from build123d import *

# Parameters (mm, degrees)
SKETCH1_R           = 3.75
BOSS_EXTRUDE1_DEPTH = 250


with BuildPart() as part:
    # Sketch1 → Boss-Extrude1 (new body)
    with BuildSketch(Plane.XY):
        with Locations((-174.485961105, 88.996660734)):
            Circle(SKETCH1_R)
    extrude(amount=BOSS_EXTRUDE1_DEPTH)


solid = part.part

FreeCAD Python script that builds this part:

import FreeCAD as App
import Part
import Sketcher
from FreeCAD import Vector
Q = App.Units.Quantity

doc = App.newDocument("Part")
params = doc.addObject("Spreadsheet::Sheet", "Params")
for row, (alias, value) in enumerate([
    ("sketch1_diameter", "7.5 mm"),
    ("pad1_length", "250 mm"),
], start=1):
    params.set(f"A{row}", alias)
    params.set(f"B{row}", "=" + value)
    params.setAlias(f"B{row}", alias)

body = doc.addObject("PartDesign::Body", "Body")

# Sketch on XY plane
sketch1 = doc.addObject("Sketcher::SketchObject", "Sketch")
body.addObject(sketch1)
sketch1.AttachmentSupport = (doc.XY_Plane, [""])
sketch1.MapMode = "FlatFace"
sketch1.addGeometry(Part.Circle(Vector(-174.485961, 88.996661, 0), Vector(0, 0, 1), 3.75), False)
sketch1.addConstraint(Sketcher.Constraint("Diameter", 0, Q("7.5 mm")))
sketch1.addConstraint(Sketcher.Constraint("DistanceX", 0, 3, -1, 1, Q("174.485961 mm")))
sketch1.addConstraint(Sketcher.Constraint("DistanceY", -1, 1, 0, 3, Q("88.996661 mm")))
sketch1.setExpression("Constraints[0]", "Params.sketch1_diameter")
pad1 = doc.addObject("PartDesign::Pad", "Pad")
body.addObject(pad1)
pad1.Profile = sketch1
pad1.setExpression("Length", "Params.pad1_length")

doc.recompute()
